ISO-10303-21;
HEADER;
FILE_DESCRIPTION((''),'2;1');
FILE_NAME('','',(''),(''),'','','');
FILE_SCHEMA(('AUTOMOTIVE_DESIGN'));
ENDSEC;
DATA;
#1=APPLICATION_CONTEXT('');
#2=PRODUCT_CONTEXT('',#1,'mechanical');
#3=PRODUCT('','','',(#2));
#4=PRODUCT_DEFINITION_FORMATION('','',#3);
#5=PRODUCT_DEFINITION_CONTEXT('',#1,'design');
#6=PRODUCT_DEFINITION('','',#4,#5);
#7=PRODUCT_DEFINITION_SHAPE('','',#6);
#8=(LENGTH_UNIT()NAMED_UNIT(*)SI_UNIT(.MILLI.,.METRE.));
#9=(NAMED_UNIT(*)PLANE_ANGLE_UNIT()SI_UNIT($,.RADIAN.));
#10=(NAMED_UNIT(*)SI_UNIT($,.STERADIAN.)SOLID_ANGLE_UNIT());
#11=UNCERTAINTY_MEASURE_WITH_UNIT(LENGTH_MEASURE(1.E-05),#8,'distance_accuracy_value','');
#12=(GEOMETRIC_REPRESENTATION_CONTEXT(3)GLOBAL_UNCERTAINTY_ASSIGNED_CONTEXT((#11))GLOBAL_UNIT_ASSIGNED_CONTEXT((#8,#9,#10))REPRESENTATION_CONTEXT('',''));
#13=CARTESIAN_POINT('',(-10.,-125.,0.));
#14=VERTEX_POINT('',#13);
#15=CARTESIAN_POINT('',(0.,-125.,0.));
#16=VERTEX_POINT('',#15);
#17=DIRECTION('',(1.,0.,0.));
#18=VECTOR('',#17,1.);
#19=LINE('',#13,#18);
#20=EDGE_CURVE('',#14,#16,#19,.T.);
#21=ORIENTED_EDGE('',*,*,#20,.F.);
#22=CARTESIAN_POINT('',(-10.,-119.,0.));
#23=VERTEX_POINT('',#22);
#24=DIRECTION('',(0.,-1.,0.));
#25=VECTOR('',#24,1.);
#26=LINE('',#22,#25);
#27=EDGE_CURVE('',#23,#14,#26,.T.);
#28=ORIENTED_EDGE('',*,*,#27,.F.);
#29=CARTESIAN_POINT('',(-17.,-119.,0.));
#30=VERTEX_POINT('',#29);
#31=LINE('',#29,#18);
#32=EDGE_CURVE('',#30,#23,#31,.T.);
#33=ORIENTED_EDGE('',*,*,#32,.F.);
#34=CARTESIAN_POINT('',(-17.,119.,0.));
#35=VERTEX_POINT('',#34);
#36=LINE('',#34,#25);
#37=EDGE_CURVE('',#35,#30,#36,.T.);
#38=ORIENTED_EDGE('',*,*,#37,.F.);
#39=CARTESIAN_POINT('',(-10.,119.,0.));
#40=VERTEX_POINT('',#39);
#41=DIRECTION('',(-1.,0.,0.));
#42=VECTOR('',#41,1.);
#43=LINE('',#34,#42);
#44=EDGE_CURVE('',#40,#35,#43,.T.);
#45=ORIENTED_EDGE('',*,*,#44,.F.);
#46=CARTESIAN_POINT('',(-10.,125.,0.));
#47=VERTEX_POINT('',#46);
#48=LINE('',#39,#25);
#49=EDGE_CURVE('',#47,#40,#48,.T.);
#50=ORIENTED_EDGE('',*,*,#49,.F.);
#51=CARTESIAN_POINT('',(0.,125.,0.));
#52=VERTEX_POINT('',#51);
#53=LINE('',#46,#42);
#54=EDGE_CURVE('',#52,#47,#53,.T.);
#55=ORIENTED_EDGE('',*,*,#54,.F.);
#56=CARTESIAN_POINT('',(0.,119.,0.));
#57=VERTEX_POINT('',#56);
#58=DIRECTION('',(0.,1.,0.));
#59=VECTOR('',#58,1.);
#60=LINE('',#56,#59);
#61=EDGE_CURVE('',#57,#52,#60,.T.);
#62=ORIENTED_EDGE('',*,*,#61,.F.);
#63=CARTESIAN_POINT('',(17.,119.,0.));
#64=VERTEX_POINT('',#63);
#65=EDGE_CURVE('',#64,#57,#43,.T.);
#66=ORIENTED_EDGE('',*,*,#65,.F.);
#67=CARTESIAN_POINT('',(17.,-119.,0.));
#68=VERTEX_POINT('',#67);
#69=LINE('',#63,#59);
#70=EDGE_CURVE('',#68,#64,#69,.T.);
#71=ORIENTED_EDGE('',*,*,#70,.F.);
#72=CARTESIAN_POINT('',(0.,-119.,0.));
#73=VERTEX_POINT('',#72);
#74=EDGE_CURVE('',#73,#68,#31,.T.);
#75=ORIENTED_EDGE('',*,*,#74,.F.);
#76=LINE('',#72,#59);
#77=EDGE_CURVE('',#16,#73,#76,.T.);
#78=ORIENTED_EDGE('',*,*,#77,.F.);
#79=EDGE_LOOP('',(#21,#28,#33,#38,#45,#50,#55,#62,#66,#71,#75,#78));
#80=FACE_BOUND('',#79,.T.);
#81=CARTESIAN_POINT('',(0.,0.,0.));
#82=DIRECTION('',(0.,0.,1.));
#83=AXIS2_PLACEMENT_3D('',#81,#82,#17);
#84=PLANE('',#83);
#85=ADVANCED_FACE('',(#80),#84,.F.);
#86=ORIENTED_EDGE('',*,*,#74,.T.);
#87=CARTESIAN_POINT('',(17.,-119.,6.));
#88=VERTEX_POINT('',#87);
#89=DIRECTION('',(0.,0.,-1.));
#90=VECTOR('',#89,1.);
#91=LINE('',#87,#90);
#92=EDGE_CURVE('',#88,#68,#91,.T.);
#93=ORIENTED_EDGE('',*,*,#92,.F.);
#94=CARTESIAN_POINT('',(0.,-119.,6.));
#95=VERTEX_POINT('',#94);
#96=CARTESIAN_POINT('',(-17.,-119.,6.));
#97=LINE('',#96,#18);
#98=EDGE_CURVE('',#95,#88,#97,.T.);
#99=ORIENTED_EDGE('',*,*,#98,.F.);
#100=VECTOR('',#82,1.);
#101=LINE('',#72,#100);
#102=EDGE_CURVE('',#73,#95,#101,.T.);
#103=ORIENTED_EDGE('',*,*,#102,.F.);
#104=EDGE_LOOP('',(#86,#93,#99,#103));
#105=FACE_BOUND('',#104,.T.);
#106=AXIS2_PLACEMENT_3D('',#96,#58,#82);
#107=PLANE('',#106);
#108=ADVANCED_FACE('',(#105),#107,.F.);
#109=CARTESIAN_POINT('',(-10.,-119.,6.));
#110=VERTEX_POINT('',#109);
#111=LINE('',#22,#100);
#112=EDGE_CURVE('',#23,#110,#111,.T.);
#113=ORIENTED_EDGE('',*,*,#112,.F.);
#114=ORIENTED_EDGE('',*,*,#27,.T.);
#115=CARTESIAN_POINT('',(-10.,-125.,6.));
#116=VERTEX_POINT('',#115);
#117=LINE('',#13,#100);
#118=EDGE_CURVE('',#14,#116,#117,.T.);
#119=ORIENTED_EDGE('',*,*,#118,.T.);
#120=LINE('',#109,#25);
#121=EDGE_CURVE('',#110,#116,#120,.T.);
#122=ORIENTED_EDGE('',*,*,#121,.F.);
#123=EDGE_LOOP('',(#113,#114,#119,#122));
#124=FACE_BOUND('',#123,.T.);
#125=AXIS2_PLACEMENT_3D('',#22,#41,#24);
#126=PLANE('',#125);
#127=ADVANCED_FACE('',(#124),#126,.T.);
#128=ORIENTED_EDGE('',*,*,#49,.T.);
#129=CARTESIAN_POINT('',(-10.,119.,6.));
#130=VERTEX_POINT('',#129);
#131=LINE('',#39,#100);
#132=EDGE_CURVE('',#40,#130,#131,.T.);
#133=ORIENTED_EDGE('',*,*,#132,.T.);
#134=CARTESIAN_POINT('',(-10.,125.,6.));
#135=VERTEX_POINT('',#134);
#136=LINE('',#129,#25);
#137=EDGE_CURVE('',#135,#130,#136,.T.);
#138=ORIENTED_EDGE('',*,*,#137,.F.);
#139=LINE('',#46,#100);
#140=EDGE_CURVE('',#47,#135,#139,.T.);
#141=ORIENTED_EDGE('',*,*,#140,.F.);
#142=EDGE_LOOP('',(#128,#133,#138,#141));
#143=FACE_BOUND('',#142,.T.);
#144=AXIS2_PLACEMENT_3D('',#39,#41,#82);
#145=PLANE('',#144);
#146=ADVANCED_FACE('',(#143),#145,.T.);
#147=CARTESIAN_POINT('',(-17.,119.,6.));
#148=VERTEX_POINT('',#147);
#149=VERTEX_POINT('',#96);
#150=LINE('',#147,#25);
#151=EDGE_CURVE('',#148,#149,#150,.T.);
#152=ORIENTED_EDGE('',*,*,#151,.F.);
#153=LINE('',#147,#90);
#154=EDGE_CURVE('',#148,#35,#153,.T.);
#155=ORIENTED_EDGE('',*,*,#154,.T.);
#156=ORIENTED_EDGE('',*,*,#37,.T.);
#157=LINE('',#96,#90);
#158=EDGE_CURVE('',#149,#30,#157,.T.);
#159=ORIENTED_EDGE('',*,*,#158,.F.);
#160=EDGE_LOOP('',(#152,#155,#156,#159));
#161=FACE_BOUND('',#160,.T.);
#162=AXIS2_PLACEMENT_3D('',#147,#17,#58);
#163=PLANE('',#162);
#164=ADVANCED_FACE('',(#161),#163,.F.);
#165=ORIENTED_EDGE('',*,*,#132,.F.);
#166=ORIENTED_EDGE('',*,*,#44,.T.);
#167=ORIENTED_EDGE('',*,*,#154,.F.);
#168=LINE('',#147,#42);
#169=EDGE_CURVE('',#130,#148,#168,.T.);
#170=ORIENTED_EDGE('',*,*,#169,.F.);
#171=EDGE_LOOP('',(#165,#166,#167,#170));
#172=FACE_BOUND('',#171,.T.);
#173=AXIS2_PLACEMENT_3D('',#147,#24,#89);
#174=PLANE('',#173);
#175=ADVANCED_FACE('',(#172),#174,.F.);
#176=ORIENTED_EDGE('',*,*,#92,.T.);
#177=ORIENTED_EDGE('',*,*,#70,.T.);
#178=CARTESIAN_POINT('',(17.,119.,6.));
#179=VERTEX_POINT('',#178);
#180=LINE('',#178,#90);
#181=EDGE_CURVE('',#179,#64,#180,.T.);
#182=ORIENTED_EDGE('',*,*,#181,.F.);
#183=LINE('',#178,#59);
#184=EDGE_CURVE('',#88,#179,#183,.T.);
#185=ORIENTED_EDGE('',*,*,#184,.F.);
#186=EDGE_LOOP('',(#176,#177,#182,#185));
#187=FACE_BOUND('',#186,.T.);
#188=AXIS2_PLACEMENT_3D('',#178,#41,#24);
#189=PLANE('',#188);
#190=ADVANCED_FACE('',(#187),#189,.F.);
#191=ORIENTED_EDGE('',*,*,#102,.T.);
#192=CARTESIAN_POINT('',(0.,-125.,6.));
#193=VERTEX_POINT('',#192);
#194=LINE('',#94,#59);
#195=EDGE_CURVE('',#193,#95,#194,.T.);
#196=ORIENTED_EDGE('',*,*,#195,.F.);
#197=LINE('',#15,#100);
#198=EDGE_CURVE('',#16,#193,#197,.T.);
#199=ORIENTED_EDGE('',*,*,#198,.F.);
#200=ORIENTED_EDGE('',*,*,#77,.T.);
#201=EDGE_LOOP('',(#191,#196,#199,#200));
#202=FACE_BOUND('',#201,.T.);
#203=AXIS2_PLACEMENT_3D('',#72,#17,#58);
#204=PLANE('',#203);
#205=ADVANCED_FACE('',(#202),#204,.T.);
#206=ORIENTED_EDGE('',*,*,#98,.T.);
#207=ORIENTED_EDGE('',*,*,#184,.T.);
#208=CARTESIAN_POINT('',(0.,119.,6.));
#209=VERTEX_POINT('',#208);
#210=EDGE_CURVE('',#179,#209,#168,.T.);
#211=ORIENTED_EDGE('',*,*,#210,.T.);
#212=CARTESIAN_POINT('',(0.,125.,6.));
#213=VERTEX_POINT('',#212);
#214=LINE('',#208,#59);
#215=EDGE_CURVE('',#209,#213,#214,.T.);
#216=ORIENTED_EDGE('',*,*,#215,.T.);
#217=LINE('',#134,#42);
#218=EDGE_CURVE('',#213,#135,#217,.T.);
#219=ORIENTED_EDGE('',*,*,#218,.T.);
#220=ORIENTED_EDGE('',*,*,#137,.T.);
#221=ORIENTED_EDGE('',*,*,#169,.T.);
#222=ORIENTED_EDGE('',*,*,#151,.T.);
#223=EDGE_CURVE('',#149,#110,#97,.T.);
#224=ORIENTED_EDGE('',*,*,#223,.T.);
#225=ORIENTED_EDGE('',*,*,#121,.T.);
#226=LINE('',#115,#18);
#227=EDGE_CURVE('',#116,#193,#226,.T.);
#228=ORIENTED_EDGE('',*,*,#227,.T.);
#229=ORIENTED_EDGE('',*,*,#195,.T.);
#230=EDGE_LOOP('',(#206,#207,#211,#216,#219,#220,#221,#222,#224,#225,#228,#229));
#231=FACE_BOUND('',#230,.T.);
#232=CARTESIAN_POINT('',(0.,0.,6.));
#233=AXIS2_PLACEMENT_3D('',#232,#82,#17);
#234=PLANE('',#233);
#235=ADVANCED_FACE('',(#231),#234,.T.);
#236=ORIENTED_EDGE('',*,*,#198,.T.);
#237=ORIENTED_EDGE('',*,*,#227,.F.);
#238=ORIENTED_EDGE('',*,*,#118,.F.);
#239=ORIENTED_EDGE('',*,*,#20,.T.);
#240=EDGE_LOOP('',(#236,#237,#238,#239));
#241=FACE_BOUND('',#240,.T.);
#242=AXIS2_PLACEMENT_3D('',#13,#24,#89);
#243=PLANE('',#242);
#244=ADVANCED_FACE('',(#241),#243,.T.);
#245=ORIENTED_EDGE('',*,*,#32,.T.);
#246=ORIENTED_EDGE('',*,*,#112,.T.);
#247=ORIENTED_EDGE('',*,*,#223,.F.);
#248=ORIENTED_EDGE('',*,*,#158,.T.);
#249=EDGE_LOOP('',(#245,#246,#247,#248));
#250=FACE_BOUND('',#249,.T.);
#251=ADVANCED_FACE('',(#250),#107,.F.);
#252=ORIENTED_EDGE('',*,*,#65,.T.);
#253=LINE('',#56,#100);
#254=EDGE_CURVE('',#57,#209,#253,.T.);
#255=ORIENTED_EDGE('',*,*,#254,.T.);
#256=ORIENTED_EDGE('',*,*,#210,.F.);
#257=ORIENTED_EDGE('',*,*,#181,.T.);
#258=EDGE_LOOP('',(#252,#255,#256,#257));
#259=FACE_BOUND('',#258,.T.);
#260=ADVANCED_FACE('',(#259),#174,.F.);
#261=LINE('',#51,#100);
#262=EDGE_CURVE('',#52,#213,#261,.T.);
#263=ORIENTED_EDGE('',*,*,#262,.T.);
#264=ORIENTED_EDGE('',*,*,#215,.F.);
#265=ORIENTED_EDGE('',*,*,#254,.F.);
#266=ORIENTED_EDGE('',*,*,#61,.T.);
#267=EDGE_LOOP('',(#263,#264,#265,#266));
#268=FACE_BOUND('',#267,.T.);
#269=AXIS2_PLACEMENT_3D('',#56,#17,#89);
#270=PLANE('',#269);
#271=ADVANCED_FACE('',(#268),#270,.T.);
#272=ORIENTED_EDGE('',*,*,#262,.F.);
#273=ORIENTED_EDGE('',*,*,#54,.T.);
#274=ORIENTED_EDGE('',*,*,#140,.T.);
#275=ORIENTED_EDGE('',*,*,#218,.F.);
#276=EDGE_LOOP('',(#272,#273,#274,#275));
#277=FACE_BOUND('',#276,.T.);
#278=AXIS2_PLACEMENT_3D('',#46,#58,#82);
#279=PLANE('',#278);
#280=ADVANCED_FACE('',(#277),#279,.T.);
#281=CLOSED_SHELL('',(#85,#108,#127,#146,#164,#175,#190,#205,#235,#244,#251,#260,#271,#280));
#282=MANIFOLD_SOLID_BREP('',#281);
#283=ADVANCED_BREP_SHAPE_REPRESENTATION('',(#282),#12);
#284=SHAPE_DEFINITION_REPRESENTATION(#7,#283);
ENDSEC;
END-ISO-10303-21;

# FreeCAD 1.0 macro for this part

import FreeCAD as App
import Part
import Sketcher
from FreeCAD import Vector

doc = App.newDocument("Part")
body = doc.addObject("PartDesign::Body", "Body")

# Sketch on XY plane
sketch1 = doc.addObject("Sketcher::SketchObject", "Sketch")
body.addObject(sketch1)
sketch1.AttachmentSupport = (doc.XY_Plane, [""])
sketch1.MapMode = "FlatFace"
sketch1.addGeometry([
    Part.LineSegment(Vector(-17, 119, 0), Vector(-17, -119, 0)),
    Part.LineSegment(Vector(-17, -119, 0), Vector(17, -119, 0)),
    Part.LineSegment(Vector(17, -119, 0), Vector(17, 119, 0)),
    Part.LineSegment(Vector(17, 119, 0), Vector(-17, 119, 0)),
], False)
sketch1.addConstraint([
    Sketcher.Constraint("Coincident", 0, 2, 1, 1),
    Sketcher.Constraint("Coincident", 1, 2, 2, 1),
    Sketcher.Constraint("Coincident", 2, 2, 3, 1),
    Sketcher.Constraint("Coincident", 3, 2, 0, 1),
    Sketcher.Constraint("Vertical", 0),
    Sketcher.Constraint("Horizontal", 1),
    Sketcher.Constraint("Vertical", 2),
    Sketcher.Constraint("Horizontal", 3),
    Sketcher.Constraint("Symmetric", 0, 2, 2, 2, -1, 1),
    Sketcher.Constraint("DistanceX", 1, 1, 1, 2, 34.0),
    Sketcher.Constraint("DistanceY", 0, 2, 0, 1, 238.0),
])
pad1 = doc.addObject("PartDesign::Pad", "Pad")
body.addObject(pad1)
pad1.Profile = sketch1
pad1.Length = 6

# Sketch on XY plane
sketch2 = doc.addObject("Sketcher::SketchObject", "Sketch001")
body.addObject(sketch2)
sketch2.AttachmentSupport = (doc.XY_Plane, [""])
sketch2.MapMode = "FlatFace"
sketch2.AttachmentOffset = App.Placement(Vector(0, 0, 6), App.Rotation())
sketch2.addGeometry([
    Part.LineSegment(Vector(-10, 125, 0), Vector(-10, 119, 0)),  # 0
    Part.LineSegment(Vector(-10, 119, 0), Vector(0, 119, 0)),  # 1
    Part.LineSegment(Vector(0, 119, 0), Vector(0, 125, 0)),  # 2
    Part.LineSegment(Vector(0, 125, 0), Vector(-10, 125, 0)),  # 3
    Part.LineSegment(Vector(-10, -119, 0), Vector(-10, -125, 0)),  # 4
    Part.LineSegment(Vector(-10, -125, 0), Vector(0, -125, 0)),  # 5
    Part.LineSegment(Vector(0, -125, 0), Vector(0, -119, 0)),  # 6
    Part.LineSegment(Vector(0, -119, 0), Vector(-10, -119, 0)),  # 7
], False)
sketch2.addConstraint([
    Sketcher.Constraint("Coincident", 0, 2, 1, 1),
    Sketcher.Constraint("Coincident", 1, 2, 2, 1),
    Sketcher.Constraint("Coincident", 2, 2, 3, 1),
    Sketcher.Constraint("Coincident", 3, 2, 0, 1),
    Sketcher.Constraint("Coincident", 4, 2, 5, 1),
    Sketcher.Constraint("Coincident", 5, 2, 6, 1),
    Sketcher.Constraint("Coincident", 6, 2, 7, 1),
    Sketcher.Constraint("Coincident", 7, 2, 4, 1),
    Sketcher.Constraint("Vertical", 0),
    Sketcher.Constraint("Horizontal", 1),
    Sketcher.Constraint("Vertical", 2),
    Sketcher.Constraint("Horizontal", 3),
    Sketcher.Constraint("Vertical", 4),
    Sketcher.Constraint("Horizontal", 5),
    Sketcher.Constraint("Vertical", 6),
    Sketcher.Constraint("Horizontal", 7),
    Sketcher.Constraint("Symmetric", 2, 2, 5, 2, -1, 1),
    Sketcher.Constraint("Symmetric", 1, 2, 6, 2, -1),
    Sketcher.Constraint("Vertical", 3, 2, 4, 2),
    Sketcher.Constraint("DistanceX", 1, 1, 1, 2, 10.0),
    Sketcher.Constraint("DistanceY", 0, 2, 0, 1, 6.0),
    Sketcher.Constraint("DistanceY", -1, 1, 0, 2, 119.0),
])
pad2 = doc.addObject("PartDesign::Pad", "Pad001")
body.addObject(pad2)
pad2.Profile = sketch2
pad2.Length = 6
pad2.Reversed = True

doc.recompute()
